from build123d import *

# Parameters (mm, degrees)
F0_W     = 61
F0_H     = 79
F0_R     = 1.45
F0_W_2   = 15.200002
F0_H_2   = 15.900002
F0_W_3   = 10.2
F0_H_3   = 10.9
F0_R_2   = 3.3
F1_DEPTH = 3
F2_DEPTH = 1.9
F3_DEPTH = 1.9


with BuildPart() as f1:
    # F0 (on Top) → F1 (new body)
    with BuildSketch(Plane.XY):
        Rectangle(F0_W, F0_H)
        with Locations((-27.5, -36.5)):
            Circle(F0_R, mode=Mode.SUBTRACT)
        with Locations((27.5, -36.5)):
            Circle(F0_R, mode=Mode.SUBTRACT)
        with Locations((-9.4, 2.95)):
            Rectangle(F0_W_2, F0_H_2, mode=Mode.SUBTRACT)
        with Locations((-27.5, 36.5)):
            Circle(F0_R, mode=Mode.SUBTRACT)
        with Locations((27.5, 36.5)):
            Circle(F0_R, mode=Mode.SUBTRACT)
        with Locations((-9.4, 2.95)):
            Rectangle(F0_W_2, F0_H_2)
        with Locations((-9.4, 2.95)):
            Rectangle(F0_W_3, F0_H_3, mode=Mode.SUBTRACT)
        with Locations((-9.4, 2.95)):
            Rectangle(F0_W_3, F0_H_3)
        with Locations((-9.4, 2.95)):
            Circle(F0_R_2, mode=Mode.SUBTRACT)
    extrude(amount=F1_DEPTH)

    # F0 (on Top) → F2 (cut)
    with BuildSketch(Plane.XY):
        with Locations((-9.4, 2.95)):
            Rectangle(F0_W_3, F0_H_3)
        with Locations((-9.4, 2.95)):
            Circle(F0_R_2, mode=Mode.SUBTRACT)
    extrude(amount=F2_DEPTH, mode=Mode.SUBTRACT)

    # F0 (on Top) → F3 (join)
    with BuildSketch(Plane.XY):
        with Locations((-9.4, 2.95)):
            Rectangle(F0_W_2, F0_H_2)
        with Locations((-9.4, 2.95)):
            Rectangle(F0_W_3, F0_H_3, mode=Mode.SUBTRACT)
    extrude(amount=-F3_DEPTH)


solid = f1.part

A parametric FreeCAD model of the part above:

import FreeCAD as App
import Part
import Sketcher
from FreeCAD import Vector
Q = App.Units.Quantity


def add_polygon(sketch, points):
    """Adds a closed chain of lines whose ends are joined by coincident constraints."""
    first, n = sketch.GeometryCount, len(points)
    for a, b in zip(points, points[1:] + points[:1]):
        sketch.addGeometry(Part.LineSegment(App.Vector(*a, 0), App.Vector(*b, 0)), False)
    for i in range(n):
        sketch.addConstraint(Sketcher.Constraint("Coincident", first + i, 2, first + (i + 1) % n, 1))

doc = App.newDocument("Part")
body = doc.addObject("PartDesign::Body", "Body")

sketch1 = body.newObject("Sketcher::SketchObject", "Sketch")
sketch1.AttachmentSupport = (doc.getObject("XY_Plane"), [""])
sketch1.MapMode = "FlatFace"
add_polygon(sketch1, [(-30.5, 39.5), (-30.5, -39.5), (30.5, -39.5), (30.5, 39.5)])
sketch1.addGeometry(Part.Circle(Vector(-27.5, -36.5, 0), Vector(0, 0, 1), 1.4), False)
sketch1.addGeometry(Part.Circle(Vector(27.5, -36.5, 0), Vector(0, 0, 1), 1.4), False)
sketch1.addGeometry(Part.Circle(Vector(-9.4, 3, 0), Vector(0, 0, 1), 3.3), False)
sketch1.addGeometry(Part.Circle(Vector(-27.5, 36.5, 0), Vector(0, 0, 1), 1.4), False)
sketch1.addGeometry(Part.Circle(Vector(27.5, 36.5, 0), Vector(0, 0, 1), 1.4), False)
sketch1.addConstraint([
    Sketcher.Constraint("Vertical", 0),
    Sketcher.Constraint("Horizontal", 1),
    Sketcher.Constraint("Vertical", 2),
    Sketcher.Constraint("Horizontal", 3),
    Sketcher.Constraint("Equal", 4, 5),
    Sketcher.Constraint("Equal", 5, 7),
    Sketcher.Constraint("Equal", 7, 8),
    Sketcher.Constraint("Symmetric", 5, 3, 7, 3, -1, 1),
    Sketcher.Constraint("Symmetric", 4, 3, 8, 3, -1, 1),
    Sketcher.Constraint("Symmetric", 0, 2, 2, 2, -1, 1),
    Sketcher.Constraint("Symmetric", 4, 3, 5, 3, -2),
    Sketcher.Constraint("Diameter", 4, Q("2.9 mm")),
    Sketcher.Constraint("Diameter", 6, Q("6.6 mm")),
    Sketcher.Constraint("DistanceX", 1, 1, 1, 2, Q("61 mm")),
    Sketcher.Constraint("DistanceY", 0, 2, 0, 1, Q("79 mm")),
    Sketcher.Constraint("DistanceX", 4, 3, 5, 3, Q("55 mm")),
    Sketcher.Constraint("DistanceY", 4, 3, 7, 3, Q("73 mm")),
    Sketcher.Constraint("DistanceX", 6, 3, -1, 1, Q("9.4 mm")),
    Sketcher.Constraint("DistanceY", -1, 1, 6, 3, Q("2.95 mm")),
])
pad1 = body.newObject("PartDesign::Pad", "Pad")
pad1.Profile = sketch1
pad1.Length = 3

sketch2 = body.newObject("Sketcher::SketchObject", "Sketch001")
sketch2.AttachmentSupport = (doc.getObject("XY_Plane"), [""])
sketch2.MapMode = "FlatFace"
add_polygon(sketch2, [(-14.5, 8.4), (-14.5, -2.5), (-4.3, -2.5), (-4.3, 8.4)])
sketch2.addGeometry(Part.Circle(Vector(-9.4, 3, 0), Vector(0, 0, 1), 3.3), False)
sketch2.addConstraint([
    Sketcher.Constraint("Vertical", 0),
    Sketcher.Constraint("Horizontal", 1),
    Sketcher.Constraint("Vertical", 2),
    Sketcher.Constraint("Horizontal", 3),
    Sketcher.Constraint("Diameter", 4, Q("6.6 mm")),
    Sketcher.Constraint("DistanceX", 1, 1, 1, 2, Q("10.2 mm")),
    Sketcher.Constraint("DistanceY", 0, 2, 0, 1, Q("10.9 mm")),
    Sketcher.Constraint("DistanceX", 4, 3, -1, 1, Q("9.4 mm")),
    Sketcher.Constraint("DistanceX", 0, 2, -1, 1, Q("14.5 mm")),
    Sketcher.Constraint("DistanceY", 0, 2, -1, 1, Q("2.5 mm")),
    Sketcher.Constraint("DistanceY", -1, 1, 4, 3, Q("2.95 mm")),
])
pocket1 = body.newObject("PartDesign::Pocket", "Pocket")
pocket1.Profile = sketch2
pocket1.Length = 1.9
pocket1.Reversed = True

sketch3 = body.newObject("Sketcher::SketchObject", "Sketch002")
sketch3.AttachmentSupport = (doc.getObject("XY_Plane"), [""])
sketch3.MapMode = "FlatFace"
add_polygon(sketch3, [(-17, 11), (-17, -5), (-2, -5), (-2, 11)])
add_polygon(sketch3, [(-4, -2), (-14, -2), (-14, 8), (-4, 8)])
sketch3.addConstraint([
    Sketcher.Constraint("Vertical", 0),
    Sketcher.Constraint("Horizontal", 1),
    Sketcher.Constraint("Vertical", 2),
    Sketcher.Constraint("Horizontal", 3),
    Sketcher.Constraint("Horizontal", 4),
    Sketcher.Constraint("Vertical", 5),
    Sketcher.Constraint("Horizontal", 6),
    Sketcher.Constraint("Vertical", 7),
    Sketcher.Constraint("DistanceX", 4, 2, 4, 1, Q("10.2 mm")),
    Sketcher.Constraint("DistanceY", 5, 1, 5, 2, Q("10.9 mm")),
    Sketcher.Constraint("DistanceX", 0, 2, -1, 1, Q("17.000001 mm")),
    Sketcher.Constraint("DistanceY", 0, 2, -1, 1, Q("5.000001 mm")),
    Sketcher.Constraint("DistanceX", 1, 2, -1, 1, Q("1.799999 mm")),
    Sketcher.Constraint("DistanceY", -1, 1, 2, 2, Q("10.900001 mm")),
    Sketcher.Constraint("DistanceX", 4, 2, -1, 1, Q("14.5 mm")),
    Sketcher.Constraint("DistanceY", 4, 2, -1, 1, Q("2.5 mm")),
])
pad2 = body.newObject("PartDesign::Pad", "Pad001")
pad2.Profile = sketch3
pad2.Length = 1.9
pad2.Reversed = True

doc.recompute()
